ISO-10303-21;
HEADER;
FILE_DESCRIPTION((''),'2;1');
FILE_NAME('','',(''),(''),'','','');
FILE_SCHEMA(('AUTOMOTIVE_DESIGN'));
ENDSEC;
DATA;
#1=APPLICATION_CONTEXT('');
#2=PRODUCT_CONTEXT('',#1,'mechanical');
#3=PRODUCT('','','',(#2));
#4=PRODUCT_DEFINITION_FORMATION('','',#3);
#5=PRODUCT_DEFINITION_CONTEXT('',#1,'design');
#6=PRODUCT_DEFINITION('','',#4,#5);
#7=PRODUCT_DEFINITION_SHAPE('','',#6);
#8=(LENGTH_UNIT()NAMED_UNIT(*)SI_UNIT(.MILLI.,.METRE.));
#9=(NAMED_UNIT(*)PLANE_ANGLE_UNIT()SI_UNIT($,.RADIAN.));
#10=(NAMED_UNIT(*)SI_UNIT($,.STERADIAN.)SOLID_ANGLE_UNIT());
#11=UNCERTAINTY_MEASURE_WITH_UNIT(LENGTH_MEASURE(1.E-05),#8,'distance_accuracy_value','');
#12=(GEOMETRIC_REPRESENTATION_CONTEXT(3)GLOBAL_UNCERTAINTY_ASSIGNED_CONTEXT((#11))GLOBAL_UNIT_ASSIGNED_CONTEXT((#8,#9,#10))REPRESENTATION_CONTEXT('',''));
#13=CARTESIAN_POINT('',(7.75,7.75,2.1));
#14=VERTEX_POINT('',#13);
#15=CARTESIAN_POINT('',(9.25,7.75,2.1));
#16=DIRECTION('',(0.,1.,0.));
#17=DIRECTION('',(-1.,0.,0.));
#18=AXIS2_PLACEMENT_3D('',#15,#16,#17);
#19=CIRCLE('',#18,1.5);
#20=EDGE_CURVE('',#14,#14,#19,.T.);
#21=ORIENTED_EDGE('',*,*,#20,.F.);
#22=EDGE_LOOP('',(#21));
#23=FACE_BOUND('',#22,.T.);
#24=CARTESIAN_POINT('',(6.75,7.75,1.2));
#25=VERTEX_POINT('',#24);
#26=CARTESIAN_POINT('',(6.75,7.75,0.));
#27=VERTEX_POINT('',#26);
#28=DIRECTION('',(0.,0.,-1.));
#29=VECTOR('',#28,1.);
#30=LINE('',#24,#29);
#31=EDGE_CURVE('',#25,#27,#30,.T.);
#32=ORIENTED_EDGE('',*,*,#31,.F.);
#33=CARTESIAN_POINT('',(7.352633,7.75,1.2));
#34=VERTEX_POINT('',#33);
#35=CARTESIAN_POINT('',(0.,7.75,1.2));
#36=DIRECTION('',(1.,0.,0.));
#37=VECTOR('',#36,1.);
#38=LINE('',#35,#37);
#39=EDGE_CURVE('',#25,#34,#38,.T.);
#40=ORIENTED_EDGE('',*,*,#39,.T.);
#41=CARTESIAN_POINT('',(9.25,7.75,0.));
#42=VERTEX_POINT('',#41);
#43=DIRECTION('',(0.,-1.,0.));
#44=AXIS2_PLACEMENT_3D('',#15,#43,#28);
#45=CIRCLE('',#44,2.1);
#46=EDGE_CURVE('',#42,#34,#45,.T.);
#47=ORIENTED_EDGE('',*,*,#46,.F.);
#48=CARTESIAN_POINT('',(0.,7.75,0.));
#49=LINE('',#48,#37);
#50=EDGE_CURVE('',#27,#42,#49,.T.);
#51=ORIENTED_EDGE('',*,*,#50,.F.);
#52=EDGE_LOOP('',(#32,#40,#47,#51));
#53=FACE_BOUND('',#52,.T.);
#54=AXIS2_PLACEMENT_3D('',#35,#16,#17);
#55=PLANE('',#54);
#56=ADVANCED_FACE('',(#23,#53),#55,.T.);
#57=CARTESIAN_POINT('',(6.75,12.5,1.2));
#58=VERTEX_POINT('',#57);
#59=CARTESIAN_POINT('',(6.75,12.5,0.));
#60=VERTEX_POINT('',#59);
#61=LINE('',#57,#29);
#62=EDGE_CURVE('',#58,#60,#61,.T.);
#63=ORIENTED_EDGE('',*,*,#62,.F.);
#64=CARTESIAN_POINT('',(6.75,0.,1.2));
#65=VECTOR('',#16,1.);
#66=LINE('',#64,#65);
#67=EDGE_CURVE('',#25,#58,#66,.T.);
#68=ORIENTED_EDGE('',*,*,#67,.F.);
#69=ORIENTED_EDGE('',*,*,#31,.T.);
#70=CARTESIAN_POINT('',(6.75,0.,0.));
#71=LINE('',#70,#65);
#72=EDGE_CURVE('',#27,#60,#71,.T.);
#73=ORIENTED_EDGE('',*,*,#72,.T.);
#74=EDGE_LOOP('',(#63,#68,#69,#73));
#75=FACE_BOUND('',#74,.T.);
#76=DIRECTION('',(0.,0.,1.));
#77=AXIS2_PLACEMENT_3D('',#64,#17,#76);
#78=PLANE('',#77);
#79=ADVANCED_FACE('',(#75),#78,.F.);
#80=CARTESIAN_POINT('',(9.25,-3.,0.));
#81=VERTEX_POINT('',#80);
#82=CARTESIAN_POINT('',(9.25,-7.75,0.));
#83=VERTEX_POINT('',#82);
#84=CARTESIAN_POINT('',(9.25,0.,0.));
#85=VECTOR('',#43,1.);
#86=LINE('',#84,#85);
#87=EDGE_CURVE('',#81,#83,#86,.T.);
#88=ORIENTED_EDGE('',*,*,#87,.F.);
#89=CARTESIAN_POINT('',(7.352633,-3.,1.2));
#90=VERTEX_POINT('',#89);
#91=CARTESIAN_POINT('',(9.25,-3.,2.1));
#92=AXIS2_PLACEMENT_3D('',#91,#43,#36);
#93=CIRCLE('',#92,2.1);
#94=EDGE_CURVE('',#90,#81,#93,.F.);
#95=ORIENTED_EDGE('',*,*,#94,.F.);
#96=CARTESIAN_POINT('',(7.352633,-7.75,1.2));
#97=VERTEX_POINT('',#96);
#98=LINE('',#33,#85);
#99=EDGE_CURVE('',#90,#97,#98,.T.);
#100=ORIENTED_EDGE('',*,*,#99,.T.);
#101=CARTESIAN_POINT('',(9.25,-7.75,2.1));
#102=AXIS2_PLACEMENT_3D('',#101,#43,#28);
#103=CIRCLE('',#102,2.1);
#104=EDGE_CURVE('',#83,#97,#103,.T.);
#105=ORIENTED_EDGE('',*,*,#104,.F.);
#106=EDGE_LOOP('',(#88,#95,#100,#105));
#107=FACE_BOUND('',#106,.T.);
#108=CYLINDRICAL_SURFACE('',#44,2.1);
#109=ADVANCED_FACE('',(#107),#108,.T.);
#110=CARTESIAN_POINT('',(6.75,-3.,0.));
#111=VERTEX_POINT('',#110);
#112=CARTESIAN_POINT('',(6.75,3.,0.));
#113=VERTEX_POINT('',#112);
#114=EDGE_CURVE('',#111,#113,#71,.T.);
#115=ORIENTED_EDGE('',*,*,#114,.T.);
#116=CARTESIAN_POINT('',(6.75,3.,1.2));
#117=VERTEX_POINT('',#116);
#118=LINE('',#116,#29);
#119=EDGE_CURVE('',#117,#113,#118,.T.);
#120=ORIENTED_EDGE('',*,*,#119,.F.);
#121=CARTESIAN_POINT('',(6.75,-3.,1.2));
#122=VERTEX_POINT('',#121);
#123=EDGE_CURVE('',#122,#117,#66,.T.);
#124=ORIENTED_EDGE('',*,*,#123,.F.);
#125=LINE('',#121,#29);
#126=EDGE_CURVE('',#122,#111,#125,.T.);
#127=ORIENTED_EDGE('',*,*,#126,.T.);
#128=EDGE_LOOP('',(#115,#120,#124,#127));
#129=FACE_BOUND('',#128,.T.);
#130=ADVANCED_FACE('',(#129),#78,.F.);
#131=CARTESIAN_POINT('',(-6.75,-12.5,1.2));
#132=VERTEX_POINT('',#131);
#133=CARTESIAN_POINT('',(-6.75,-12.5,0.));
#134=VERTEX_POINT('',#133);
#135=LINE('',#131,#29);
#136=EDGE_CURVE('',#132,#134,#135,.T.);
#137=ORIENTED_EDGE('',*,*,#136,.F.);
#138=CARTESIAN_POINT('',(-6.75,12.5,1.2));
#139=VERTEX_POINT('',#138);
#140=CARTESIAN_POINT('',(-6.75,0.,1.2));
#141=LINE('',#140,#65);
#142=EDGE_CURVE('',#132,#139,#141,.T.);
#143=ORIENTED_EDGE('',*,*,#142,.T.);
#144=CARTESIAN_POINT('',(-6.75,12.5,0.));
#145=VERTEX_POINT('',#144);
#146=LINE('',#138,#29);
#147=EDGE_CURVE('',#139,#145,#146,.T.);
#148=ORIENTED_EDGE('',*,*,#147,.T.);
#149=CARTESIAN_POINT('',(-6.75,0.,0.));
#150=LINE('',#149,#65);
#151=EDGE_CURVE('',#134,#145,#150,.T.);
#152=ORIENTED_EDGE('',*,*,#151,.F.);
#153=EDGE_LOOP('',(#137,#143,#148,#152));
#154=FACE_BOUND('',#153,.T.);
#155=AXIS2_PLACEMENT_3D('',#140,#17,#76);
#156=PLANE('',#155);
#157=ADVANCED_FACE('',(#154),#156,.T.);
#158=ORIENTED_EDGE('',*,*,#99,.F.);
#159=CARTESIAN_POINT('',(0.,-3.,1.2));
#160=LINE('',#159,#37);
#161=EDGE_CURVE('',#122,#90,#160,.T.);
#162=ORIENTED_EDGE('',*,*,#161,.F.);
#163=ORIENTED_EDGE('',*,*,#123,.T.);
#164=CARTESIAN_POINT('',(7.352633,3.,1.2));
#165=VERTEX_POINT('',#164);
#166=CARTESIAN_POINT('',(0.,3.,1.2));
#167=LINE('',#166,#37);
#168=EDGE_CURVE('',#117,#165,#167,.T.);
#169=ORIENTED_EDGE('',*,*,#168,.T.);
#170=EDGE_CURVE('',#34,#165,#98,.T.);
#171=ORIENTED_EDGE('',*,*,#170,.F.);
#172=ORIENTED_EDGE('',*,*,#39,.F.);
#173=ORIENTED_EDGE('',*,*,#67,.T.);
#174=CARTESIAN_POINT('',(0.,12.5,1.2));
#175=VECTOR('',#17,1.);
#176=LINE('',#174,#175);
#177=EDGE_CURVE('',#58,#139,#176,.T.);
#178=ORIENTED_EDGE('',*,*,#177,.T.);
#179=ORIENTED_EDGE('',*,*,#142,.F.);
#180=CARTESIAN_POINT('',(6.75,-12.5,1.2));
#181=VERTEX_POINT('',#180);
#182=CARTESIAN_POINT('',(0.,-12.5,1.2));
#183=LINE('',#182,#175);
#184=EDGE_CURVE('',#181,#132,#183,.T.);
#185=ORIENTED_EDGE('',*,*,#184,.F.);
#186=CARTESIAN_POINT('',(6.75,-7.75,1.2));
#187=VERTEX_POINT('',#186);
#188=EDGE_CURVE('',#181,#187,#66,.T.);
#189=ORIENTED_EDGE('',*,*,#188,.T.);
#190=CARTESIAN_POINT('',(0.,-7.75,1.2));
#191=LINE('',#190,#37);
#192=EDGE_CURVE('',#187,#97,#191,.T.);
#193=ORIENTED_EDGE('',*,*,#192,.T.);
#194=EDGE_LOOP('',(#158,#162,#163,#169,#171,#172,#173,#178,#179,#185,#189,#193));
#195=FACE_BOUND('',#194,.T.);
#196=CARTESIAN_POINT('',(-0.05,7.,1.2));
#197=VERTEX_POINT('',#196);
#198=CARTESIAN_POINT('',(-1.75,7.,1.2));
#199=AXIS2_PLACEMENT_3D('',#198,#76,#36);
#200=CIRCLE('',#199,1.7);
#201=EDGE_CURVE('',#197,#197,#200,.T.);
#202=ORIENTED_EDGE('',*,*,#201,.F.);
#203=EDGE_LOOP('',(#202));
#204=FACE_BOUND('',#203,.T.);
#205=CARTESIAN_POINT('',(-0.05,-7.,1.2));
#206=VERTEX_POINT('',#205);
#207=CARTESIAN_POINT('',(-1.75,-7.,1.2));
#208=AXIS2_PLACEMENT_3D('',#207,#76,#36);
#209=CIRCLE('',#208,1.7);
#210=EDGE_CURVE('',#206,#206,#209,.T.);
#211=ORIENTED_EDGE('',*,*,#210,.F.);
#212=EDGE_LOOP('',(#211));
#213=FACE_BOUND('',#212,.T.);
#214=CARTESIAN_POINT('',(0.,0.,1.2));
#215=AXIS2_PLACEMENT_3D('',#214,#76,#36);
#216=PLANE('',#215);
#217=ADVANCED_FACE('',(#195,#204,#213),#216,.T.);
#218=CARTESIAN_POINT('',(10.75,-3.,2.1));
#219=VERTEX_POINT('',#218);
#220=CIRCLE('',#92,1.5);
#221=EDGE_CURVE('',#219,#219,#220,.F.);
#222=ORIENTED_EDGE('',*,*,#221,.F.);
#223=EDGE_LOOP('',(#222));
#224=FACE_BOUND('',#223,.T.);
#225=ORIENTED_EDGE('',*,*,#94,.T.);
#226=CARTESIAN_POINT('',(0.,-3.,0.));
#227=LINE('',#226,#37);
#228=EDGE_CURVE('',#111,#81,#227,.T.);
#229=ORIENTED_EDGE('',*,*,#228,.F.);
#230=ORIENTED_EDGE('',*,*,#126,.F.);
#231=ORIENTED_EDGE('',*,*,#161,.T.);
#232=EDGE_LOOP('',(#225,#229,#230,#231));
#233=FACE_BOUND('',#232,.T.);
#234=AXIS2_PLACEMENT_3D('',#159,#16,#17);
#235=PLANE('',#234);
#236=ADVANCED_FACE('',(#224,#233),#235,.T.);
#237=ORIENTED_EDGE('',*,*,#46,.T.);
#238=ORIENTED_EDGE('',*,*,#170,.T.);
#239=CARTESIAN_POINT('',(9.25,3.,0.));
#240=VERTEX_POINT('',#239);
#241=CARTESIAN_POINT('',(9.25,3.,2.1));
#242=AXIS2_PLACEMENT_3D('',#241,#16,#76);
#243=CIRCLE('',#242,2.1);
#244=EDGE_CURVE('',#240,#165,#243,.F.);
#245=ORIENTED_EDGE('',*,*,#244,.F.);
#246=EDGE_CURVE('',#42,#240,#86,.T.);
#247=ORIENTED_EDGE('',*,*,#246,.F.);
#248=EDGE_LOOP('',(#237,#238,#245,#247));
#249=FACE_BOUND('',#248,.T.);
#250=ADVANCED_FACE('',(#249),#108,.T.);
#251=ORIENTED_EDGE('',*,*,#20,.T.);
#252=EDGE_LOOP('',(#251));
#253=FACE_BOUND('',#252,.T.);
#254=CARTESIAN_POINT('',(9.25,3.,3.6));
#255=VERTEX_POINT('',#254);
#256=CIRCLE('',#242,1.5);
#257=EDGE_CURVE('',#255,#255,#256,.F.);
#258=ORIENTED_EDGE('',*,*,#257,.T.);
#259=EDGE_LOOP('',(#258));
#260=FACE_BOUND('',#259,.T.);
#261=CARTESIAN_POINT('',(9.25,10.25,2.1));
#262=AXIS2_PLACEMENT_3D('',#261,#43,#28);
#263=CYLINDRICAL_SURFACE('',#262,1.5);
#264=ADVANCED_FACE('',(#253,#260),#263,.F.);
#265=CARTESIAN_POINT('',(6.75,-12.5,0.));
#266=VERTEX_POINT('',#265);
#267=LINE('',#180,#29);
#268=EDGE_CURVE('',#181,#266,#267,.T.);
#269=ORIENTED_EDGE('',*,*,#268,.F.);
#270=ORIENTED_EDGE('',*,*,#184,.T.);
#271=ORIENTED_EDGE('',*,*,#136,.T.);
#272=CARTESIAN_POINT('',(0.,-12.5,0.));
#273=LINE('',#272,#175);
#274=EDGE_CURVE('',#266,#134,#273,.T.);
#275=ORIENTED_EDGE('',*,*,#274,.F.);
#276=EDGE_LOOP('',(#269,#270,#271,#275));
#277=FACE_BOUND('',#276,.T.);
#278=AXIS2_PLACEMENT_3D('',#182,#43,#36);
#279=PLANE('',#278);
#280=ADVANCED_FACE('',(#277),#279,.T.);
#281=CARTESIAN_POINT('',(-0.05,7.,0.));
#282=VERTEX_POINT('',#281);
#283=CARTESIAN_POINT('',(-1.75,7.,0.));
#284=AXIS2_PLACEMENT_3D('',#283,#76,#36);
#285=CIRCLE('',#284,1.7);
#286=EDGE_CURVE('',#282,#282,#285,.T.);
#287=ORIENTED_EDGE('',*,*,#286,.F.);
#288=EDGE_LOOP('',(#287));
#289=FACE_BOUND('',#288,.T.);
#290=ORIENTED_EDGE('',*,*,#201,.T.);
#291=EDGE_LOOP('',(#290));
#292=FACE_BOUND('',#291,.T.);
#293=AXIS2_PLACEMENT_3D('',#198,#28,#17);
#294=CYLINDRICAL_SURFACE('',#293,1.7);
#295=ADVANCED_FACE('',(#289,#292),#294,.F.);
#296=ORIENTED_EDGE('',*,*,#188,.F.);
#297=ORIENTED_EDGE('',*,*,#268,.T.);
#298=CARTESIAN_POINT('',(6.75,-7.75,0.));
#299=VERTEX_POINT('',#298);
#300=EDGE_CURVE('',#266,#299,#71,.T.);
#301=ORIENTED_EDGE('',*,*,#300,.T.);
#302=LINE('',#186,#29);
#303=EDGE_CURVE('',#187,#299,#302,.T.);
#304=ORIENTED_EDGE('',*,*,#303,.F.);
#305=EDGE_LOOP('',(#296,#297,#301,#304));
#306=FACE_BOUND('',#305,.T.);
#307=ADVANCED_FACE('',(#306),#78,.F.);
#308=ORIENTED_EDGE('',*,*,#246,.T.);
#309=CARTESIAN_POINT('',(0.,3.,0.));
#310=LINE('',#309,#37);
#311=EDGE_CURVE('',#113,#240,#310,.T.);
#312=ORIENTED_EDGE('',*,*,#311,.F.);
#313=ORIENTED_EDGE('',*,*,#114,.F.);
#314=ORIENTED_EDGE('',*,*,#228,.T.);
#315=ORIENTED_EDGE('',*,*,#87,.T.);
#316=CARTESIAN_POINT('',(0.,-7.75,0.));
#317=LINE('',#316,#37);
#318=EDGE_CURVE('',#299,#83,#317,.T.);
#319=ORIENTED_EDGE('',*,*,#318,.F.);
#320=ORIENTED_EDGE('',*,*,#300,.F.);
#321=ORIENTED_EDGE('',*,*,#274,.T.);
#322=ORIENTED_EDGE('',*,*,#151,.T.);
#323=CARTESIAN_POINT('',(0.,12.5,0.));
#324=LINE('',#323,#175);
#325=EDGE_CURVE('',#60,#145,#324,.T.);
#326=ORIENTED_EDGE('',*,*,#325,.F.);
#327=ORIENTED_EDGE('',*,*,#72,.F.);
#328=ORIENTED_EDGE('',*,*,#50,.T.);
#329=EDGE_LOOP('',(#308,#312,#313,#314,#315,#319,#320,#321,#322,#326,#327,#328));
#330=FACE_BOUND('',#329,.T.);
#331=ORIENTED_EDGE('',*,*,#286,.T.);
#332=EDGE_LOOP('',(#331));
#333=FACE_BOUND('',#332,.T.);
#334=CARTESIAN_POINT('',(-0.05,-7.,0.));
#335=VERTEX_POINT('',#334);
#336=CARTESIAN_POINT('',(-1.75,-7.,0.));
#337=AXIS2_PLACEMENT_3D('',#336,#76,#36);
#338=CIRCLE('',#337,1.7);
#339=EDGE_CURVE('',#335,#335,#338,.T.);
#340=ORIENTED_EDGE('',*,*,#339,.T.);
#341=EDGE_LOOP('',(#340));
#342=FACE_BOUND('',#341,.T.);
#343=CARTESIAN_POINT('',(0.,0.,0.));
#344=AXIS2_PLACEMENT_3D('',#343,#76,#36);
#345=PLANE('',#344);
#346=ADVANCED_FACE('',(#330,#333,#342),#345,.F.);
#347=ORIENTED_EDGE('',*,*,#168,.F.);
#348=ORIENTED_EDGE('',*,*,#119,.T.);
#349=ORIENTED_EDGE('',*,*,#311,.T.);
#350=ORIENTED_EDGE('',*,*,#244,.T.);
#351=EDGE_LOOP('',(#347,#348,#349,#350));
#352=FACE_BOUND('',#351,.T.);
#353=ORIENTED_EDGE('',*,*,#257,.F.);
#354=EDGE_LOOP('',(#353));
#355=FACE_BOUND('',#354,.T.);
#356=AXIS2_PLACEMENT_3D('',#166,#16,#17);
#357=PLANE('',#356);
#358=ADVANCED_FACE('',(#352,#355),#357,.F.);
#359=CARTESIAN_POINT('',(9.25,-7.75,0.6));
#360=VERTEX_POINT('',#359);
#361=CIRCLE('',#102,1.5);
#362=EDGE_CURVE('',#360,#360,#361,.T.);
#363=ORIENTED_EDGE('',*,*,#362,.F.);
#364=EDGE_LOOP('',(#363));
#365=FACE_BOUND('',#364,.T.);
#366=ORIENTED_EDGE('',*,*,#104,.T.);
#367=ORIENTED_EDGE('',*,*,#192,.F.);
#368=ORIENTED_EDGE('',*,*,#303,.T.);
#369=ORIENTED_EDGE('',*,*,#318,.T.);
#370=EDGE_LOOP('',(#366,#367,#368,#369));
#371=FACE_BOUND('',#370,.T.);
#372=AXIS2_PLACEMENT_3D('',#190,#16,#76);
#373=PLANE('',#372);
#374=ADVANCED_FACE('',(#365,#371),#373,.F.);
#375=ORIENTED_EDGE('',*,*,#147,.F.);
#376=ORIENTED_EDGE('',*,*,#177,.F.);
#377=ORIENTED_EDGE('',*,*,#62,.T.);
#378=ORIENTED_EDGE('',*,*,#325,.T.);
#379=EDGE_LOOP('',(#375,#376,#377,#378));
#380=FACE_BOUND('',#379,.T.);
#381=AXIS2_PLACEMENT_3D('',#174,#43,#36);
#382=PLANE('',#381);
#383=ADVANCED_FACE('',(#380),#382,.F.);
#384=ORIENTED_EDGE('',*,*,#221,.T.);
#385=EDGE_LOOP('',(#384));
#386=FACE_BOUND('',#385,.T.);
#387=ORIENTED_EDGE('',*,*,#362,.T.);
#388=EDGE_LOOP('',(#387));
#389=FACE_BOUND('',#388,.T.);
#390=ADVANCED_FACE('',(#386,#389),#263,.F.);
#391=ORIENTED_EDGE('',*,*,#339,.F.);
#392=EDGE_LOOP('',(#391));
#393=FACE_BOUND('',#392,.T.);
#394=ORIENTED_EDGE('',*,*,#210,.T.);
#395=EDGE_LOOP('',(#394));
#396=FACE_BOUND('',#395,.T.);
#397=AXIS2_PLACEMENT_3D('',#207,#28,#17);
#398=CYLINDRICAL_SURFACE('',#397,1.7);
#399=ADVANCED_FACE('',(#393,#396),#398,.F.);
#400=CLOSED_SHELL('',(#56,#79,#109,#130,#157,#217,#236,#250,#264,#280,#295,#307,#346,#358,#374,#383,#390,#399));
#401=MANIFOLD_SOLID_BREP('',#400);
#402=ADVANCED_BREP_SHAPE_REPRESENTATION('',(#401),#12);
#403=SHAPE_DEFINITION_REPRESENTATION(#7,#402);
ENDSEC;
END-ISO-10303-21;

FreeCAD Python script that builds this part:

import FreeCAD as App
import Part
import Sketcher
Q = App.Units.Quantity

doc = App.newDocument("Part")
body = doc.addObject("PartDesign::Body", "Body")

# Sketch on XY plane
sketch1 = doc.addObject("Sketcher::SketchObject", "Sketch")
body.addObject(sketch1)
sketch1.AttachmentSupport = (doc.XY_Plane, [""])
sketch1.MapMode = "FlatFace"
sketch1.addGeometry([
    Part.LineSegment(App.Vector(-6.75, 12.5, 0), App.Vector(-6.75, -12.5, 0)),  # 0
    Part.LineSegment(App.Vector(-6.75, -12.5, 0), App.Vector(6.75, -12.5, 0)),  # 1
    Part.LineSegment(App.Vector(6.75, -12.5, 0), App.Vector(6.75, -7.75, 0)),  # 2
    Part.LineSegment(App.Vector(6.75, -7.75, 0), App.Vector(9.25, -7.75, 0)),  # 3
    Part.LineSegment(App.Vector(9.25, -7.75, 0), App.Vector(9.25, -3, 0)),  # 4
    Part.LineSegment(App.Vector(9.25, -3, 0), App.Vector(6.75, -3, 0)),  # 5
    Part.LineSegment(App.Vector(6.75, -3, 0), App.Vector(6.75, 3, 0)),  # 6
    Part.LineSegment(App.Vector(6.75, 3, 0), App.Vector(9.25, 3, 0)),  # 7
    Part.LineSegment(App.Vector(9.25, 3, 0), App.Vector(9.25, 7.75, 0)),  # 8
    Part.LineSegment(App.Vector(9.25, 7.75, 0), App.Vector(6.75, 7.75, 0)),  # 9
    Part.LineSegment(App.Vector(6.75, 7.75, 0), App.Vector(6.75, 12.5, 0)),  # 10
    Part.LineSegment(App.Vector(6.75, 12.5, 0), App.Vector(-6.75, 12.5, 0)),  # 11
    Part.Circle(App.Vector(-1.75, -7, 0), App.Vector(0, 0, 1), 1.7),  # 12
    Part.Circle(App.Vector(-1.75, 7, 0), App.Vector(0, 0, 1), 1.7),  # 13
], False)
sketch1.addConstraint([
    Sketcher.Constraint("Coincident", 0, 2, 1, 1),
    Sketcher.Constraint("Coincident", 1, 2, 2, 1),
    Sketcher.Constraint("Coincident", 2, 2, 3, 1),
    Sketcher.Constraint("Coincident", 3, 2, 4, 1),
    Sketcher.Constraint("Coincident", 4, 2, 5, 1),
    Sketcher.Constraint("Coincident", 5, 2, 6, 1),
    Sketcher.Constraint("Coincident", 6, 2, 7, 1),
    Sketcher.Constraint("Coincident", 7, 2, 8, 1),
    Sketcher.Constraint("Coincident", 8, 2, 9, 1),
    Sketcher.Constraint("Coincident", 9, 2, 10, 1),
    Sketcher.Constraint("Coincident", 10, 2, 11, 1),
    Sketcher.Constraint("Coincident", 11, 2, 0, 1),
    Sketcher.Constraint("Vertical", 0),
    Sketcher.Constraint("Horizontal", 1),
    Sketcher.Constraint("Vertical", 2),
    Sketcher.Constraint("Horizontal", 3),
    Sketcher.Constraint("Vertical", 4),
    Sketcher.Constraint("Horizontal", 5),
    Sketcher.Constraint("Vertical", 6),
    Sketcher.Constraint("Horizontal", 7),
    Sketcher.Constraint("Vertical", 8),
    Sketcher.Constraint("Horizontal", 9),
    Sketcher.Constraint("Vertical", 10),
    Sketcher.Constraint("Horizontal", 11),
    Sketcher.Constraint("Equal", 12, 13),
    Sketcher.Constraint("Symmetric", 0, 2, 10, 2, -1, 1),
    Sketcher.Constraint("Symmetric", 12, 3, 13, 3, -1),
    Sketcher.Constraint("Symmetric", 4, 2, 7, 2, -1),
    Sketcher.Constraint("Symmetric", 2, 2, 9, 2, -1),
    Sketcher.Constraint("Vertical", 2, 2, 5, 2),
    Sketcher.Constraint("Equal", 2, 4),
    Sketcher.Constraint("Diameter", 12, Q("3.4 mm")),
    Sketcher.Constraint("DistanceY", 0, 2, 0, 1, Q("25 mm")),
    Sketcher.Constraint("DistanceY", 6, 1, 6, 2, Q("6 mm")),
    Sketcher.Constraint("DistanceX", 1, 1, 1, 2, Q("13.5 mm")),
    Sketcher.Constraint("DistanceX", 3, 1, 3, 2, Q("2.5 mm")),
    Sketcher.Constraint("DistanceY", 12, 3, -1, 1, Q("7 mm")),
    Sketcher.Constraint("DistanceX", 0, 2, 12, 3, Q("5 mm")),
])
pad1 = doc.addObject("PartDesign::Pad", "Pad")
body.addObject(pad1)
pad1.Profile = sketch1
pad1.Length = 1.2

# Sketch on XZ plane
sketch2 = doc.addObject("Sketcher::SketchObject", "Sketch001")
body.addObject(sketch2)
sketch2.AttachmentSupport = (doc.XZ_Plane, [""])
sketch2.MapMode = "FlatFace"
sketch2.AttachmentOffset = App.Placement(App.Vector(0, 0, 7.75), App.Rotation())
sketch2.addGeometry(Part.Circle(App.Vector(9.25, 2.1, 0), App.Vector(0, 0, 1), 2.1), False)
sketch2.addConstraint([
    Sketcher.Constraint("Diameter", 0, Q("4.2 mm")),
    Sketcher.Constraint("DistanceY", -1, 1, 0, 3, Q("2.1 mm")),
    Sketcher.Constraint("DistanceX", -1, 1, 0, 3, Q("9.25 mm")),
])
pad2 = doc.addObject("PartDesign::Pad", "Pad001")
body.addObject(pad2)
pad2.Profile = sketch2
pad2.Length = 15.5
pad2.Reversed = True

# Sketch on XZ plane
sketch3 = doc.addObject("Sketcher::SketchObject", "Sketch002")
body.addObject(sketch3)
sketch3.AttachmentSupport = (doc.XZ_Plane, [""])
sketch3.MapMode = "FlatFace"
sketch3.AttachmentOffset = App.Placement(App.Vector(0, 0, 7.75), App.Rotation())
sketch3.addGeometry(Part.Circle(App.Vector(9.25, 2.1, 0), App.Vector(0, 0, 1), 1.5), False)
sketch3.addConstraint([
    Sketcher.Constraint("Diameter", 0, Q("3 mm")),
    Sketcher.Constraint("DistanceY", -1, 1, 0, 3, Q("2.1 mm")),
    Sketcher.Constraint("DistanceX", -1, 1, 0, 3, Q("9.25 mm")),
])
pocket1 = doc.addObject("PartDesign::Pocket", "Pocket")
body.addObject(pocket1)
pocket1.Profile = sketch3
pocket1.Length = 18

# Sketch on XY plane
sketch4 = doc.addObject("Sketcher::SketchObject", "Sketch003")
body.addObject(sketch4)
sketch4.AttachmentSupport = (doc.XY_Plane, [""])
sketch4.MapMode = "FlatFace"
sketch4.AttachmentOffset = App.Placement(App.Vector(0, 0, 1.2), App.Rotation())
sketch4.addGeometry([
    Part.LineSegment(App.Vector(6.75, 3, 0), App.Vector(6.75, -3, 0)),
    Part.LineSegment(App.Vector(6.75, -3, 0), App.Vector(11.35, -3, 0)),
    Part.LineSegment(App.Vector(11.35, -3, 0), App.Vector(11.35, 3, 0)),
    Part.LineSegment(App.Vector(11.35, 3, 0), App.Vector(6.75, 3, 0)),
], False)
sketch4.addConstraint([
    Sketcher.Constraint("Coincident", 0, 2, 1, 1),
    Sketcher.Constraint("Coincident", 1, 2, 2, 1),
    Sketcher.Constraint("Coincident", 2, 2, 3, 1),
    Sketcher.Constraint("Coincident", 3, 2, 0, 1),
    Sketcher.Constraint("Vertical", 0),
    Sketcher.Constraint("Horizontal", 1),
    Sketcher.Constraint("Vertical", 2),
    Sketcher.Constraint("Horizontal", 3),
    Sketcher.Constraint("DistanceY", 0, 2, 0, 1, Q("6 mm")),
    Sketcher.Constraint("DistanceX", 1, 1, 1, 2, Q("4.6 mm")),
    Sketcher.Constraint("DistanceY", 0, 2, -1, 1, Q("3 mm")),
    Sketcher.Constraint("DistanceX", -1, 1, 0, 2, Q("6.75 mm")),
])
pocket2 = doc.addObject("PartDesign::Pocket", "Pocket001")
body.addObject(pocket2)
pocket2.Profile = sketch4
pocket2.Length = 10
pocket2.Midplane = True

doc.recompute()
